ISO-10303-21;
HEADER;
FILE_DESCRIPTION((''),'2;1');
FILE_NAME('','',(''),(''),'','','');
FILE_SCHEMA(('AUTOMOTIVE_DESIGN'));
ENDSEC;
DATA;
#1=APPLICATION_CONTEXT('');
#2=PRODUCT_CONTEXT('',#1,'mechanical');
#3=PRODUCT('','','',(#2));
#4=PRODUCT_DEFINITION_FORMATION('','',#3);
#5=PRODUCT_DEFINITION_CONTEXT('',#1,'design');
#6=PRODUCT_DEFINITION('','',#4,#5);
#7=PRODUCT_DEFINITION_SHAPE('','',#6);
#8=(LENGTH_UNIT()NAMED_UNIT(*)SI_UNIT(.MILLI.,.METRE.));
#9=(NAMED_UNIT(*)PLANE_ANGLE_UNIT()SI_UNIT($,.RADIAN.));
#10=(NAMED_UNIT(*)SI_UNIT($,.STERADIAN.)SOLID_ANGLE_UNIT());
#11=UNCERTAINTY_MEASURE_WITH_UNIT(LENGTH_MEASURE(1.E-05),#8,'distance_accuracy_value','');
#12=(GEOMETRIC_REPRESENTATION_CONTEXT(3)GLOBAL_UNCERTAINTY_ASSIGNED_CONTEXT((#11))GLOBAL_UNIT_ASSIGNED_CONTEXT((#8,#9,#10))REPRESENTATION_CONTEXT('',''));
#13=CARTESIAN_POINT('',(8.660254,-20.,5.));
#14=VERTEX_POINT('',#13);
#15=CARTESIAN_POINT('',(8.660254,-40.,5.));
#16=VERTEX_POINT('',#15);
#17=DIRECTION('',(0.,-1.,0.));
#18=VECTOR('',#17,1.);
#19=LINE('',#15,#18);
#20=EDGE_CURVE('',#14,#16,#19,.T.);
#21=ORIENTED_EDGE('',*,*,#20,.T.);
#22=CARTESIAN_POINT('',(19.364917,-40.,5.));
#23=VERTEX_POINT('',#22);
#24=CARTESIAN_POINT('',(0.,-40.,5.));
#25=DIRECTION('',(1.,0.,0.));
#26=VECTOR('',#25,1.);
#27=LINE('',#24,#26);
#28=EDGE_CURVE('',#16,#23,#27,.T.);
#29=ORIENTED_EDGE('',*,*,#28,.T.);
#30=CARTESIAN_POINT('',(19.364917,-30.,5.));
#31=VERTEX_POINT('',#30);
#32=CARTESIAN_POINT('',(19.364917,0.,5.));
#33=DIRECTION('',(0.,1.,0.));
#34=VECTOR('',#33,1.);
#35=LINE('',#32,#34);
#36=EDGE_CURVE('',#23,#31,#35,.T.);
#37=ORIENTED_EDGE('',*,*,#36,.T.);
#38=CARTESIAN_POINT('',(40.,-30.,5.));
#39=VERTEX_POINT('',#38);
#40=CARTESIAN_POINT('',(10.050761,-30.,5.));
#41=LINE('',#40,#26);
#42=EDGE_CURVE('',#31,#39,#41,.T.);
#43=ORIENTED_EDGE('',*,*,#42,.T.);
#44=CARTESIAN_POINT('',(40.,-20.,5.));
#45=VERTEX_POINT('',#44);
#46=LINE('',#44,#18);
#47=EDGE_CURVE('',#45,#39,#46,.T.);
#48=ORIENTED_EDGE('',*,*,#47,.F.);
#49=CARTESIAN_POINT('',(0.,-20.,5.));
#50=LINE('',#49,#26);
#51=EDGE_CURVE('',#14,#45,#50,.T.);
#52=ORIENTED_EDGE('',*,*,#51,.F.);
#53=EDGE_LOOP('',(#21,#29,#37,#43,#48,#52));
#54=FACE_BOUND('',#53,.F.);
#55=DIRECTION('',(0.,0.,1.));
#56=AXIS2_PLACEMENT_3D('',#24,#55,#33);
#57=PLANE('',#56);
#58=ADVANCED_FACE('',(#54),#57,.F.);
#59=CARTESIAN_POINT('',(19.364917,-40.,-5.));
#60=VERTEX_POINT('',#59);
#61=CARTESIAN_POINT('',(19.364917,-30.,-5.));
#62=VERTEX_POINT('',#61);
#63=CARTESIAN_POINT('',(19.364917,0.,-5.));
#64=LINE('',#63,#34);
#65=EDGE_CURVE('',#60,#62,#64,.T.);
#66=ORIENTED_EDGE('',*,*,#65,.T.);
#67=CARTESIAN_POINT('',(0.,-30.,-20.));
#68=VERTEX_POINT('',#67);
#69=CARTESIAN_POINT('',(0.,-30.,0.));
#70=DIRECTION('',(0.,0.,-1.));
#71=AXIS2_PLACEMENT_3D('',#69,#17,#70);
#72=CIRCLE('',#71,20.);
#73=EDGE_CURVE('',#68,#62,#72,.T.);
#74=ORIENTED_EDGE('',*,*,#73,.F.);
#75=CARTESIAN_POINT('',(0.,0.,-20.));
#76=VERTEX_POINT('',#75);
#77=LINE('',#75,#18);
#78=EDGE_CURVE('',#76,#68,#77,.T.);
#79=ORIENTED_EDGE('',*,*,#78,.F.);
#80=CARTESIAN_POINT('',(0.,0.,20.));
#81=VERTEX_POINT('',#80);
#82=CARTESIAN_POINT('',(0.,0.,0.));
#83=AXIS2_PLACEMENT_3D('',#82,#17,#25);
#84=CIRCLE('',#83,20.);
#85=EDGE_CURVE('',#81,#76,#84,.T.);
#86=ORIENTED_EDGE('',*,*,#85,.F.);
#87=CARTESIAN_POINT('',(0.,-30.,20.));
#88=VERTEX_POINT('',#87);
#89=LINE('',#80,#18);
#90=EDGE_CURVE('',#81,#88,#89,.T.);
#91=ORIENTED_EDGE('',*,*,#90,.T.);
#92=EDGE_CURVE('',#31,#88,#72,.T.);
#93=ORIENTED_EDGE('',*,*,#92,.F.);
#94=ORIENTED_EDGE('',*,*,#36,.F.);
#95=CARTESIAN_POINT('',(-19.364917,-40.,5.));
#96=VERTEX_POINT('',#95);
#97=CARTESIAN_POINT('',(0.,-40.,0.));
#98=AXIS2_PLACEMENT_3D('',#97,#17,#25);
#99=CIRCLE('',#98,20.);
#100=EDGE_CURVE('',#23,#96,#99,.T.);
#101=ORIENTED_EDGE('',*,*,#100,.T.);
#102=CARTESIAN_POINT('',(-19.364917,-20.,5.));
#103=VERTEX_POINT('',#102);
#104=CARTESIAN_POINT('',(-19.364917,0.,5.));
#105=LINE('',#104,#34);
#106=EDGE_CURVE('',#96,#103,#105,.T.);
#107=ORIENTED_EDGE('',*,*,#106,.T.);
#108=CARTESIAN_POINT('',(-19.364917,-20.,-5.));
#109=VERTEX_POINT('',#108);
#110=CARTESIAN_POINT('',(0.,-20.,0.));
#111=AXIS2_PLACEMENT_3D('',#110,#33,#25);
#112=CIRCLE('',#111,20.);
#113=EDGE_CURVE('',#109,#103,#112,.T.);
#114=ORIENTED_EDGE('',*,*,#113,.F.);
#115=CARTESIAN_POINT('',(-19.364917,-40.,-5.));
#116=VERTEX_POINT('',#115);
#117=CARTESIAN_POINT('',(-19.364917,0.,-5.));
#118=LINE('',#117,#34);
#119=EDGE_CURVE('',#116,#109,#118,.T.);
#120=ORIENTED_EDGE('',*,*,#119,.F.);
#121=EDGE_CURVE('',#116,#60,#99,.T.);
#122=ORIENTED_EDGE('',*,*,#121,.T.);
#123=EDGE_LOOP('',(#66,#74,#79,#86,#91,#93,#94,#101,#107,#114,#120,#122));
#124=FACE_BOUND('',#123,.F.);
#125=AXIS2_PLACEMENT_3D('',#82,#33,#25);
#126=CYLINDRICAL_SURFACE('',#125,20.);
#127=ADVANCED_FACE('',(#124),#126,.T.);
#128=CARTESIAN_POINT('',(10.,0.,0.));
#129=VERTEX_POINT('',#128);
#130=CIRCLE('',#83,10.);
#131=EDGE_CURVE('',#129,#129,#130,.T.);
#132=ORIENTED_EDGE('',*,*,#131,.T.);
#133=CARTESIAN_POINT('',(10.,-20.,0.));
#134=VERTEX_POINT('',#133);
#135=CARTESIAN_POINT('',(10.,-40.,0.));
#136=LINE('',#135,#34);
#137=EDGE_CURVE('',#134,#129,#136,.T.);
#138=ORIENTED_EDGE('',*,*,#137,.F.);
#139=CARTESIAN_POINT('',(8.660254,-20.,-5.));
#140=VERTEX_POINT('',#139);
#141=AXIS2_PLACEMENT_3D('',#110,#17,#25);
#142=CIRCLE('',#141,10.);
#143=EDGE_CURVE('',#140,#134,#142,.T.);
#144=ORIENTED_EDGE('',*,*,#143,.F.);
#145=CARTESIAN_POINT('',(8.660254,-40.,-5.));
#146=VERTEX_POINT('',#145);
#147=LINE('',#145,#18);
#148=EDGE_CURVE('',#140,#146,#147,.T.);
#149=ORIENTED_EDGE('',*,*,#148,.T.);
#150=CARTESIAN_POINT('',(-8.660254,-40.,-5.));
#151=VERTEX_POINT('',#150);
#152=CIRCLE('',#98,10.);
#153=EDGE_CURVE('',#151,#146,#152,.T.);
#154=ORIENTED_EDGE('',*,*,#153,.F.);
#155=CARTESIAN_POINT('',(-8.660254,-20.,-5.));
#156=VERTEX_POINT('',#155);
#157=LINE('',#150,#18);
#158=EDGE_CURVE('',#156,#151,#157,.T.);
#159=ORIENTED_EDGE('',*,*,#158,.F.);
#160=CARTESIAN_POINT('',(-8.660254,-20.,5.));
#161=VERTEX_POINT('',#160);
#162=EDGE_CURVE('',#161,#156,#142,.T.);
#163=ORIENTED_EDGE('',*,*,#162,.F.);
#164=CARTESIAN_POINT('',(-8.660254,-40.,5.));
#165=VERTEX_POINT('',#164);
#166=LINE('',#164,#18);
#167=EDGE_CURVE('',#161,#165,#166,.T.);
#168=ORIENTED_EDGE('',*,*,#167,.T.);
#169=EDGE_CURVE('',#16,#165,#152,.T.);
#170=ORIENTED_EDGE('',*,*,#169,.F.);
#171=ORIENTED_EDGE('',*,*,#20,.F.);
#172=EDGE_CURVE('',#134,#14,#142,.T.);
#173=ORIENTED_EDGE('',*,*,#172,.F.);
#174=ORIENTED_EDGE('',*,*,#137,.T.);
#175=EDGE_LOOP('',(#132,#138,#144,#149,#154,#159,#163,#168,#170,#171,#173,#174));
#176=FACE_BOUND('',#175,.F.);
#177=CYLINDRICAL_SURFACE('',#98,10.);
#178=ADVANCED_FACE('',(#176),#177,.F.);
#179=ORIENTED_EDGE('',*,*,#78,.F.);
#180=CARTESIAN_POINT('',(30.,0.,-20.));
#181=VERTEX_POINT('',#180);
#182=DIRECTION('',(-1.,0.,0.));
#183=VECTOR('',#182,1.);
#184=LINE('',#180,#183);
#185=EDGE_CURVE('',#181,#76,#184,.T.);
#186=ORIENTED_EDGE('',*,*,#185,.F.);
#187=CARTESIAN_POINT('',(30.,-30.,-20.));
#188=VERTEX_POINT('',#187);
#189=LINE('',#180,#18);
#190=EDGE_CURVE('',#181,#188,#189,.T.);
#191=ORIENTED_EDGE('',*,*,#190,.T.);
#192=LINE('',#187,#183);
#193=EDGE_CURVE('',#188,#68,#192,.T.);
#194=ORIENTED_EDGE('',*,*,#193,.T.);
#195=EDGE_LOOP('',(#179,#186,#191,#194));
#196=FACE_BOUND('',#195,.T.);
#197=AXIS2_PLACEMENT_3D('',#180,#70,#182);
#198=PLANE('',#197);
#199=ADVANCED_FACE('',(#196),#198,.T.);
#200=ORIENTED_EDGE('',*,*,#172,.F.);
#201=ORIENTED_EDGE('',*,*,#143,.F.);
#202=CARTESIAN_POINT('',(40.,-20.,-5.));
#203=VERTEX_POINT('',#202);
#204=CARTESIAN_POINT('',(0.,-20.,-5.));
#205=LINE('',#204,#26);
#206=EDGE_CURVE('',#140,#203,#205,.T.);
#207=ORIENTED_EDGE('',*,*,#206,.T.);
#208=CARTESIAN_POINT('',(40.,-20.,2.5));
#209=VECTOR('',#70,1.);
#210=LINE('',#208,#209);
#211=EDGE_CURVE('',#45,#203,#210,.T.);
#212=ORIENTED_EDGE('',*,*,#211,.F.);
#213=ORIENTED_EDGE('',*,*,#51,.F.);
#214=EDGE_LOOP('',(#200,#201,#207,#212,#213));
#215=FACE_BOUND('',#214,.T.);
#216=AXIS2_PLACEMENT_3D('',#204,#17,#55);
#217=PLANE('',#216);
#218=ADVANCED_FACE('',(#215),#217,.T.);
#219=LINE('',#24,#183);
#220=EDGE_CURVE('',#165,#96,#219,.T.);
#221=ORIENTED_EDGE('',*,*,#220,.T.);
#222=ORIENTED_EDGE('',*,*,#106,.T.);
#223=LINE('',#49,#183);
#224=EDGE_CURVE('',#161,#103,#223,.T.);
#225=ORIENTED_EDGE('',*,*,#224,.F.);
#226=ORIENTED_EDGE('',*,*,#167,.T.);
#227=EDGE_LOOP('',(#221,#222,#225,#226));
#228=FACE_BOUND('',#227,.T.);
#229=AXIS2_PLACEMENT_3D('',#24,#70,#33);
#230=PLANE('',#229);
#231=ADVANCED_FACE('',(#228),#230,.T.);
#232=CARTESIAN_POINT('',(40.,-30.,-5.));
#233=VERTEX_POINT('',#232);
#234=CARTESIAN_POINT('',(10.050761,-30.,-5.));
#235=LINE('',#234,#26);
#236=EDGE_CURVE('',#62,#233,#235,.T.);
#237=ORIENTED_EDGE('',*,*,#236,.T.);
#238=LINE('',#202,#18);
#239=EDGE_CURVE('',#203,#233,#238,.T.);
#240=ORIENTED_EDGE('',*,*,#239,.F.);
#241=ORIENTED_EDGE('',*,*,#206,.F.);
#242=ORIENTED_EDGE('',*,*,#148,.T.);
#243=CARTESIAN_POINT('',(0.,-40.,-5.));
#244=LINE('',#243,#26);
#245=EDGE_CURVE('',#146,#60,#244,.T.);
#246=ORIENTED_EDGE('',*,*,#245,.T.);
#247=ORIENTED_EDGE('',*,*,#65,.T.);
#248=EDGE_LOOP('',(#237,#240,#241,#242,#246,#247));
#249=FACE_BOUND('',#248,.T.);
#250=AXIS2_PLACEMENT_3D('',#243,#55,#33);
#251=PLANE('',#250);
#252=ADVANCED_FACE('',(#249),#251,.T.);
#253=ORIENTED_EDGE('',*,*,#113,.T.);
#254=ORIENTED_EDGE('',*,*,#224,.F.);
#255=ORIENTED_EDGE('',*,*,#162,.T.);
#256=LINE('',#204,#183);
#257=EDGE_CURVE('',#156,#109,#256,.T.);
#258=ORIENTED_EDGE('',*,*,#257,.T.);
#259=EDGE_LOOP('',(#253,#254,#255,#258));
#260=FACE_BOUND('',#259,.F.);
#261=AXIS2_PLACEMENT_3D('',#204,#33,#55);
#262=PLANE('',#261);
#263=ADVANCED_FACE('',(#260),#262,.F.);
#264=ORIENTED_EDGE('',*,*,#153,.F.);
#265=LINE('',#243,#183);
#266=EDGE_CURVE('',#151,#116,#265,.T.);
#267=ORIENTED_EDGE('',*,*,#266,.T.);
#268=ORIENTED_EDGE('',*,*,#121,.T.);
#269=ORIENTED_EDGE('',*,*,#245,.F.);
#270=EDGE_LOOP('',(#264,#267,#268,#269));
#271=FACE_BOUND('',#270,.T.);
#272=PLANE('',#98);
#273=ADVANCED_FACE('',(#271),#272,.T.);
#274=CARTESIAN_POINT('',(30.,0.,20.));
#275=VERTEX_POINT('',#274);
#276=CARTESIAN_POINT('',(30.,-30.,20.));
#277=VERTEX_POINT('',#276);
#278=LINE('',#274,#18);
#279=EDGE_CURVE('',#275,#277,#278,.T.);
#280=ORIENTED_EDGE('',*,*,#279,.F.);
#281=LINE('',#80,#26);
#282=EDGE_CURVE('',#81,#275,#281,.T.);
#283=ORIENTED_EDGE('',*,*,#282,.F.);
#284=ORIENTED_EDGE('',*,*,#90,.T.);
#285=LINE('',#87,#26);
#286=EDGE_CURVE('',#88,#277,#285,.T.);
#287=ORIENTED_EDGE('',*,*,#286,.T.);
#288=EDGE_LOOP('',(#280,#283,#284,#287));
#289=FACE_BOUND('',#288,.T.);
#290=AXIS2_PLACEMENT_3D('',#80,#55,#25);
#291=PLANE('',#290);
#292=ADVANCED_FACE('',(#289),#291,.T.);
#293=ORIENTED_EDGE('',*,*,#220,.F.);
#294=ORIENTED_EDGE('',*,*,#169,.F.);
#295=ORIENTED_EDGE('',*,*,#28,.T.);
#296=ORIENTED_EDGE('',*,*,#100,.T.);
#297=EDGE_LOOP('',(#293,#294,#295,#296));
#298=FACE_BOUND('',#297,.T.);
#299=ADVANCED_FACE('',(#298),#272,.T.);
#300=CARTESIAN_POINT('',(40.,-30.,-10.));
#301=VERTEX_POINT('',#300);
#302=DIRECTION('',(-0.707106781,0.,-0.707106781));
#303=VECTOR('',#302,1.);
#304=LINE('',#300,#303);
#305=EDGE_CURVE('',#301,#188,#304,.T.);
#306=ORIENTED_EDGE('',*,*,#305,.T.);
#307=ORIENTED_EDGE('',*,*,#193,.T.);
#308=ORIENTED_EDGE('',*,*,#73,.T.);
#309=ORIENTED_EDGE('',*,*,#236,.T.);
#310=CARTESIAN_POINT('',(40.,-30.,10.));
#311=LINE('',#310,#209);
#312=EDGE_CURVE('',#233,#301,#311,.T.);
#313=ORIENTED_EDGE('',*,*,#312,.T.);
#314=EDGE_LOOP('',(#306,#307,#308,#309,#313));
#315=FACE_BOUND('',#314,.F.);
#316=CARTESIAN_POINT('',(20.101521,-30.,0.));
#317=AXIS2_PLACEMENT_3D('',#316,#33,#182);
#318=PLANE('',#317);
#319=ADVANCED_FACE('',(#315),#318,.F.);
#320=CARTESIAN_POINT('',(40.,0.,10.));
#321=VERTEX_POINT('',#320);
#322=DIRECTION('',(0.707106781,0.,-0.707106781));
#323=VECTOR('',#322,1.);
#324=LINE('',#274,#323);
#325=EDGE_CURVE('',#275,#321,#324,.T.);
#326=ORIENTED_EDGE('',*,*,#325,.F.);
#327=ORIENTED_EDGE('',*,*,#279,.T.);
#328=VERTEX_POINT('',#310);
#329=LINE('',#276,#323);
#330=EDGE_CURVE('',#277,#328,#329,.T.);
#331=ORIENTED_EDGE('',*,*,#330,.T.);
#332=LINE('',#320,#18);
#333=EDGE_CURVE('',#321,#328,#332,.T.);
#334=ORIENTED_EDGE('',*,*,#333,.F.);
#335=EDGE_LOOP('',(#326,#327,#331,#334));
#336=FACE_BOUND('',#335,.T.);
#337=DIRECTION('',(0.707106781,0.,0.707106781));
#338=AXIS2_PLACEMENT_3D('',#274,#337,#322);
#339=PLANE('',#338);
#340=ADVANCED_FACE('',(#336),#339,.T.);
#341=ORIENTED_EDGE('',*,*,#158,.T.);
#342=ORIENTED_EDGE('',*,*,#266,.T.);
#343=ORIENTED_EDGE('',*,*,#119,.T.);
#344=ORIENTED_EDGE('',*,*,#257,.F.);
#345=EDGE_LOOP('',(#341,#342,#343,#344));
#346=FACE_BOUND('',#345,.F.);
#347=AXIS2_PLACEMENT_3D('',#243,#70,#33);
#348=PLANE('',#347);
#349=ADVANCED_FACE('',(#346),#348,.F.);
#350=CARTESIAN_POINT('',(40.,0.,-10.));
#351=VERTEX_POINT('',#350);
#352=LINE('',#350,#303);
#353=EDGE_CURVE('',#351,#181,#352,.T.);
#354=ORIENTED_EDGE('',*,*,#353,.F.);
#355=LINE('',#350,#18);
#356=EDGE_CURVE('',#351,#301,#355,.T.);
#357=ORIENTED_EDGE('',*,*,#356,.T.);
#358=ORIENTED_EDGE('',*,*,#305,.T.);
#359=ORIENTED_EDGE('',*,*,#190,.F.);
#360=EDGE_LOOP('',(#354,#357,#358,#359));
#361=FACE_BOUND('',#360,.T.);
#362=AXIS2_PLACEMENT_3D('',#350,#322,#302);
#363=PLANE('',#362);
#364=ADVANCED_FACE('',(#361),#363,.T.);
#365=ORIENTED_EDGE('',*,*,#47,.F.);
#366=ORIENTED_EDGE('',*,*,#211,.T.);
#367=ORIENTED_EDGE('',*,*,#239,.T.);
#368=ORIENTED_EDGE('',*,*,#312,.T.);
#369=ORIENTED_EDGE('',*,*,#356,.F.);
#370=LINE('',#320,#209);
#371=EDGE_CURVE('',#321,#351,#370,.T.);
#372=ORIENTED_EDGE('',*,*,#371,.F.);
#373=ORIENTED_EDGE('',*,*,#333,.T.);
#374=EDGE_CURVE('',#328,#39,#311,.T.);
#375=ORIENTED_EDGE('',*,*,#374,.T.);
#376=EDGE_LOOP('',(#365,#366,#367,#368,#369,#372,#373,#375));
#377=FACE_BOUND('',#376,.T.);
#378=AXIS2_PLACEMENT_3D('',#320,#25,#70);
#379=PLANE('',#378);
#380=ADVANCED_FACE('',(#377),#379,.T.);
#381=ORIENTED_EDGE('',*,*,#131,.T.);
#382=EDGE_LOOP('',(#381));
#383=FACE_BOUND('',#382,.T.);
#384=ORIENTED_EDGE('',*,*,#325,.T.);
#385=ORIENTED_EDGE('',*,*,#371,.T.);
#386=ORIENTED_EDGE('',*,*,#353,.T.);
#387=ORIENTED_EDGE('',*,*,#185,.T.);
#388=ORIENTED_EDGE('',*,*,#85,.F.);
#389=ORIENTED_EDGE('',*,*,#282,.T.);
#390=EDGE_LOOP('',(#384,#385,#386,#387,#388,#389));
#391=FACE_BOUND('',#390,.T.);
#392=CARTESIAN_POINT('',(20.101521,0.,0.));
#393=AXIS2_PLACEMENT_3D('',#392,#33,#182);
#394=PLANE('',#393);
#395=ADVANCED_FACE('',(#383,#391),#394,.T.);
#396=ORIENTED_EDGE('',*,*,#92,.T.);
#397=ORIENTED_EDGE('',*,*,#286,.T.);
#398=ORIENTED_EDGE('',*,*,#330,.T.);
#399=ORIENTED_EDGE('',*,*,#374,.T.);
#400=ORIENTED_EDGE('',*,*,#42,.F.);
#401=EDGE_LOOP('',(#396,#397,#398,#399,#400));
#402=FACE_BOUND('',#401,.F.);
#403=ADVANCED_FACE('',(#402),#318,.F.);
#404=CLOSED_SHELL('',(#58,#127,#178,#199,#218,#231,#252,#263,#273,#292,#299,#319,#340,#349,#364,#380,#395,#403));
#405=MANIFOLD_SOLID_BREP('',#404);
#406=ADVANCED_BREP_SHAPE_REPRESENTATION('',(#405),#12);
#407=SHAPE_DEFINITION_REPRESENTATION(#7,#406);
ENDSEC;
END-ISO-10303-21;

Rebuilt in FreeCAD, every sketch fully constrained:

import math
import FreeCAD as App
import Part
import Sketcher
from FreeCAD import Vector


def add_polygon(sketch, points):
    """Adds a closed chain of lines whose ends are joined by coincident constraints."""
    first, n = sketch.GeometryCount, len(points)
    for a, b in zip(points, points[1:] + points[:1]):
        sketch.addGeometry(Part.LineSegment(App.Vector(*a, 0), App.Vector(*b, 0)), False)
    for i in range(n):
        sketch.addConstraint(Sketcher.Constraint("Coincident", first + i, 2, first + (i + 1) % n, 1))

doc = App.newDocument("Part")
body = doc.addObject("PartDesign::Body", "Body")

# Sketch on XZ plane
sketch1 = body.newObject("Sketcher::SketchObject", "Sketch")
sketch1.AttachmentSupport = (doc.getObject("XZ_Plane"), [""])
sketch1.MapMode = "FlatFace"
sketch1.addGeometry(Part.Circle(Vector(0, 0, 0), Vector(0, 0, 1), 20), False)
sketch1.addConstraint(Sketcher.Constraint("Coincident", 0, 3, -1, 1))
sketch1.addConstraint(Sketcher.Constraint("Diameter", 0, 40.0))
pad1 = body.newObject("PartDesign::Pad", "Pad")
pad1.Profile = sketch1
pad1.Length = 40

# Sketch on XZ plane
sketch2 = body.newObject("Sketcher::SketchObject", "Sketch001")
sketch2.AttachmentSupport = (doc.getObject("XZ_Plane"), [""])
sketch2.MapMode = "FlatFace"
sketch2.addGeometry(Part.ArcOfCircle(Part.Circle(Vector(0, 0, 0), Vector(0, 0, 1), 20), math.radians(-90), math.radians(90)), False)
sketch2.addGeometry(Part.LineSegment(Vector(0, 20, 0), Vector(30, 20, 0)), False)
sketch2.addGeometry(Part.LineSegment(Vector(30, 20, 0), Vector(40, 10, 0)), False)
sketch2.addGeometry(Part.LineSegment(Vector(40, 10, 0), Vector(40, -10, 0)), False)
sketch2.addGeometry(Part.LineSegment(Vector(40, -10, 0), Vector(30, -20, 0)), False)
sketch2.addGeometry(Part.LineSegment(Vector(30, -20, 0), Vector(0, -20, 0)), False)
sketch2.addConstraint(Sketcher.Constraint("Tangent", 0, 2, 1, 1))
sketch2.addConstraint(Sketcher.Constraint("Coincident", 1, 2, 2, 1))
sketch2.addConstraint(Sketcher.Constraint("Coincident", 2, 2, 3, 1))
sketch2.addConstraint(Sketcher.Constraint("Coincident", 3, 2, 4, 1))
sketch2.addConstraint(Sketcher.Constraint("Coincident", 4, 2, 5, 1))
sketch2.addConstraint(Sketcher.Constraint("Tangent", 5, 2, 0, 1))
sketch2.addConstraint(Sketcher.Constraint("Horizontal", 1))
sketch2.addConstraint(Sketcher.Constraint("Vertical", 3))
sketch2.addConstraint(Sketcher.Constraint("Horizontal", 5))
sketch2.addConstraint(Sketcher.Constraint("Coincident", 0, 3, -1, 1))
sketch2.addConstraint(Sketcher.Constraint("Perpendicular", 2, 4))
sketch2.addConstraint(Sketcher.Constraint("Vertical", 1, 2, 4, 2))
sketch2.addConstraint(Sketcher.Constraint("Equal", 2, 4))
sketch2.addConstraint(Sketcher.Constraint("Radius", 0, 20.0))
sketch2.addConstraint(Sketcher.Constraint("DistanceX", 1, 1, 1, 2, 30.0))
sketch2.addConstraint(Sketcher.Constraint("DistanceY", 3, 2, 3, 1, 20.0))
pad2 = body.newObject("PartDesign::Pad", "Pad001")
pad2.Profile = sketch2
pad2.Length = 30

# Sketch on XZ plane
sketch3 = body.newObject("Sketcher::SketchObject", "Sketch002")
sketch3.AttachmentSupport = (doc.getObject("XZ_Plane"), [""])
sketch3.MapMode = "FlatFace"
sketch3.AttachmentOffset = App.Placement(Vector(0, 0, 40), App.Rotation())
sketch3.addGeometry(Part.Circle(Vector(0, 0, 0), Vector(0, 0, 1), 10), False)
sketch3.addConstraint(Sketcher.Constraint("Coincident", 0, 3, -1, 1))
sketch3.addConstraint(Sketcher.Constraint("Diameter", 0, 20.0))
pocket1 = body.newObject("PartDesign::Pocket", "Pocket")
pocket1.Profile = sketch3
pocket1.Type = "ThroughAll"

# Sketch on YZ plane
sketch4 = body.newObject("Sketcher::SketchObject", "Sketch003")
sketch4.AttachmentSupport = (doc.getObject("YZ_Plane"), [""])
sketch4.MapMode = "FlatFace"
add_polygon(sketch4, [(-40, 5), (-40, -5), (-20, -5), (-20, 5)])  # lines 0-3
sketch4.addConstraint(Sketcher.Constraint("Vertical", 0))
sketch4.addConstraint(Sketcher.Constraint("Horizontal", 1))
sketch4.addConstraint(Sketcher.Constraint("Vertical", 2))
sketch4.addConstraint(Sketcher.Constraint("Horizontal", 3))
sketch4.addConstraint(Sketcher.Constraint("DistanceX", 1, 1, 1, 2, 20.0))
sketch4.addConstraint(Sketcher.Constraint("DistanceY", 0, 2, 0, 1, 10.0))
sketch4.addConstraint(Sketcher.Constraint("DistanceX", 0, 2, -1, 1, 40.0))
sketch4.addConstraint(Sketcher.Constraint("DistanceY", 0, 2, -1, 1, 5.0))
pocket2 = body.newObject("PartDesign::Pocket", "Pocket001")
pocket2.Profile = sketch4
pocket2.Type = "ThroughAll"
pocket2.Midplane = True

doc.recompute()
